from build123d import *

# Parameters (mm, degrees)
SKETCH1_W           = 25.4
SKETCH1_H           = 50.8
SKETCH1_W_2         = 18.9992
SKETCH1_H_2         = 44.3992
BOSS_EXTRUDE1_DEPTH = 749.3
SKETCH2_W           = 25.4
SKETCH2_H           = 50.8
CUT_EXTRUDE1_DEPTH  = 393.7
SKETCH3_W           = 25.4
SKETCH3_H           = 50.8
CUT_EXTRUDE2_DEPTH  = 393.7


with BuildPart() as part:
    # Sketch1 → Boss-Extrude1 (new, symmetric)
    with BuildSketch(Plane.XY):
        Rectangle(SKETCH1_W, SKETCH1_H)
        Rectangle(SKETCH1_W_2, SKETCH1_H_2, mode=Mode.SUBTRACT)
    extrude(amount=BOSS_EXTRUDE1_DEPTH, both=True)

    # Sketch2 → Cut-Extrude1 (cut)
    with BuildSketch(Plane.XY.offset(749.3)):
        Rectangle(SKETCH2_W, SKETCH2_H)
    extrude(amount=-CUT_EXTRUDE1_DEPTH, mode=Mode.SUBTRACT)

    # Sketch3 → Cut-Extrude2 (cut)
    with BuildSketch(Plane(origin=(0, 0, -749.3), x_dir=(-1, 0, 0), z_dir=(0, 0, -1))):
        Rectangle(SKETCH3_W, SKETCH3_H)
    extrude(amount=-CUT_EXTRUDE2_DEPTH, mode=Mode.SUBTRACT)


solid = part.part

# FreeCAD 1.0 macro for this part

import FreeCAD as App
import Part
import Sketcher
Q = App.Units.Quantity


def add_polygon(sketch, points):
    """Adds a closed chain of lines whose ends are joined by coincident constraints."""
    first, n = sketch.GeometryCount, len(points)
    for a, b in zip(points, points[1:] + points[:1]):
        sketch.addGeometry(Part.LineSegment(App.Vector(*a, 0), App.Vector(*b, 0)), False)
    for i in range(n):
        sketch.addConstraint(Sketcher.Constraint("Coincident", first + i, 2, first + (i + 1) % n, 1))

doc = App.newDocument("Part")
body = doc.addObject("PartDesign::Body", "Body")

# Sketch on XY plane
sketch1 = body.newObject("Sketcher::SketchObject", "Sketch")
sketch1.AttachmentSupport = (doc.getObject("XY_Plane"), [""])
sketch1.MapMode = "FlatFace"
add_polygon(sketch1, [(-13, 25), (-13, -25), (13, -25), (13, 25)])  # lines 0-3
add_polygon(sketch1, [(9, -22), (-9, -22), (-9, 22), (9, 22)])  # lines 4-7
sketch1.addConstraint(Sketcher.Constraint("Vertical", 0))
sketch1.addConstraint(Sketcher.Constraint("Horizontal", 1))
sketch1.addConstraint(Sketcher.Constraint("Vertical", 2))
sketch1.addConstraint(Sketcher.Constraint("Horizontal", 3))
sketch1.addConstraint(Sketcher.Constraint("Horizontal", 4))
sketch1.addConstraint(Sketcher.Constraint("Vertical", 5))
sketch1.addConstraint(Sketcher.Constraint("Horizontal", 6))
sketch1.addConstraint(Sketcher.Constraint("Vertical", 7))
sketch1.addConstraint(Sketcher.Constraint("Symmetric", 0, 2, 2, 2, -1, 1))
sketch1.addConstraint(Sketcher.Constraint("Symmetric", 4, 2, 6, 2, -1, 1))
sketch1.addConstraint(Sketcher.Constraint("DistanceX", 1, 1, 1, 2, Q("1 in")))
sketch1.addConstraint(Sketcher.Constraint("DistanceY", 0, 2, 0, 1, Q("2 in")))
sketch1.addConstraint(Sketcher.Constraint("DistanceX", 4, 2, 4, 1, Q("0.748 in")))
sketch1.addConstraint(Sketcher.Constraint("DistanceY", 5, 1, 5, 2, Q("1.748 in")))
pad1 = body.newObject("PartDesign::Pad", "Pad")
pad1.Profile = sketch1
pad1.Length = Q("59 in")
pad1.Midplane = True

# Sketch on XY plane
sketch2 = body.newObject("Sketcher::SketchObject", "Sketch001")
sketch2.AttachmentSupport = (doc.getObject("XY_Plane"), [""])
sketch2.MapMode = "FlatFace"
sketch2.AttachmentOffset = App.Placement(App.Vector(0, 0, 29.5 * 25.4), App.Rotation())
add_polygon(sketch2, [(-13, 25), (-13, -25), (13, -25), (13, 25)])  # lines 0-3
sketch2.addConstraint(Sketcher.Constraint("Vertical", 0))
sketch2.addConstraint(Sketcher.Constraint("Horizontal", 1))
sketch2.addConstraint(Sketcher.Constraint("Vertical", 2))
sketch2.addConstraint(Sketcher.Constraint("Horizontal", 3))
sketch2.addConstraint(Sketcher.Constraint("Symmetric", 0, 2, 2, 2, -1, 1))
sketch2.addConstraint(Sketcher.Constraint("DistanceX", 1, 1, 1, 2, Q("1 in")))
sketch2.addConstraint(Sketcher.Constraint("DistanceY", 0, 2, 0, 1, Q("2 in")))
pocket1 = body.newObject("PartDesign::Pocket", "Pocket")
pocket1.Profile = sketch2
pocket1.Length = Q("15.5 in")

# Sketch on XY plane
sketch3 = body.newObject("Sketcher::SketchObject", "Sketch002")
sketch3.AttachmentSupport = (doc.getObject("XY_Plane"), [""])
sketch3.MapMode = "FlatFace"
sketch3.AttachmentOffset = App.Placement(App.Vector(0, 0, -29.5 * 25.4), App.Rotation())
add_polygon(sketch3, [(13, 25), (13, -25), (-13, -25), (-13, 25)])  # lines 0-3
sketch3.addConstraint(Sketcher.Constraint("Vertical", 0))
sketch3.addConstraint(Sketcher.Constraint("Horizontal", 1))
sketch3.addConstraint(Sketcher.Constraint("Vertical", 2))
sketch3.addConstraint(Sketcher.Constraint("Horizontal", 3))
sketch3.addConstraint(Sketcher.Constraint("Symmetric", 0, 2, 2, 2, -1, 1))
sketch3.addConstraint(Sketcher.Constraint("DistanceX", 1, 2, 1, 1, Q("1 in")))
sketch3.addConstraint(Sketcher.Constraint("DistanceY", 0, 2, 0, 1, Q("2 in")))
pocket2 = body.newObject("PartDesign::Pocket", "Pocket001")
pocket2.Profile = sketch3
pocket2.Length = Q("15.5 in")
pocket2.Reversed = True

doc.recompute()
